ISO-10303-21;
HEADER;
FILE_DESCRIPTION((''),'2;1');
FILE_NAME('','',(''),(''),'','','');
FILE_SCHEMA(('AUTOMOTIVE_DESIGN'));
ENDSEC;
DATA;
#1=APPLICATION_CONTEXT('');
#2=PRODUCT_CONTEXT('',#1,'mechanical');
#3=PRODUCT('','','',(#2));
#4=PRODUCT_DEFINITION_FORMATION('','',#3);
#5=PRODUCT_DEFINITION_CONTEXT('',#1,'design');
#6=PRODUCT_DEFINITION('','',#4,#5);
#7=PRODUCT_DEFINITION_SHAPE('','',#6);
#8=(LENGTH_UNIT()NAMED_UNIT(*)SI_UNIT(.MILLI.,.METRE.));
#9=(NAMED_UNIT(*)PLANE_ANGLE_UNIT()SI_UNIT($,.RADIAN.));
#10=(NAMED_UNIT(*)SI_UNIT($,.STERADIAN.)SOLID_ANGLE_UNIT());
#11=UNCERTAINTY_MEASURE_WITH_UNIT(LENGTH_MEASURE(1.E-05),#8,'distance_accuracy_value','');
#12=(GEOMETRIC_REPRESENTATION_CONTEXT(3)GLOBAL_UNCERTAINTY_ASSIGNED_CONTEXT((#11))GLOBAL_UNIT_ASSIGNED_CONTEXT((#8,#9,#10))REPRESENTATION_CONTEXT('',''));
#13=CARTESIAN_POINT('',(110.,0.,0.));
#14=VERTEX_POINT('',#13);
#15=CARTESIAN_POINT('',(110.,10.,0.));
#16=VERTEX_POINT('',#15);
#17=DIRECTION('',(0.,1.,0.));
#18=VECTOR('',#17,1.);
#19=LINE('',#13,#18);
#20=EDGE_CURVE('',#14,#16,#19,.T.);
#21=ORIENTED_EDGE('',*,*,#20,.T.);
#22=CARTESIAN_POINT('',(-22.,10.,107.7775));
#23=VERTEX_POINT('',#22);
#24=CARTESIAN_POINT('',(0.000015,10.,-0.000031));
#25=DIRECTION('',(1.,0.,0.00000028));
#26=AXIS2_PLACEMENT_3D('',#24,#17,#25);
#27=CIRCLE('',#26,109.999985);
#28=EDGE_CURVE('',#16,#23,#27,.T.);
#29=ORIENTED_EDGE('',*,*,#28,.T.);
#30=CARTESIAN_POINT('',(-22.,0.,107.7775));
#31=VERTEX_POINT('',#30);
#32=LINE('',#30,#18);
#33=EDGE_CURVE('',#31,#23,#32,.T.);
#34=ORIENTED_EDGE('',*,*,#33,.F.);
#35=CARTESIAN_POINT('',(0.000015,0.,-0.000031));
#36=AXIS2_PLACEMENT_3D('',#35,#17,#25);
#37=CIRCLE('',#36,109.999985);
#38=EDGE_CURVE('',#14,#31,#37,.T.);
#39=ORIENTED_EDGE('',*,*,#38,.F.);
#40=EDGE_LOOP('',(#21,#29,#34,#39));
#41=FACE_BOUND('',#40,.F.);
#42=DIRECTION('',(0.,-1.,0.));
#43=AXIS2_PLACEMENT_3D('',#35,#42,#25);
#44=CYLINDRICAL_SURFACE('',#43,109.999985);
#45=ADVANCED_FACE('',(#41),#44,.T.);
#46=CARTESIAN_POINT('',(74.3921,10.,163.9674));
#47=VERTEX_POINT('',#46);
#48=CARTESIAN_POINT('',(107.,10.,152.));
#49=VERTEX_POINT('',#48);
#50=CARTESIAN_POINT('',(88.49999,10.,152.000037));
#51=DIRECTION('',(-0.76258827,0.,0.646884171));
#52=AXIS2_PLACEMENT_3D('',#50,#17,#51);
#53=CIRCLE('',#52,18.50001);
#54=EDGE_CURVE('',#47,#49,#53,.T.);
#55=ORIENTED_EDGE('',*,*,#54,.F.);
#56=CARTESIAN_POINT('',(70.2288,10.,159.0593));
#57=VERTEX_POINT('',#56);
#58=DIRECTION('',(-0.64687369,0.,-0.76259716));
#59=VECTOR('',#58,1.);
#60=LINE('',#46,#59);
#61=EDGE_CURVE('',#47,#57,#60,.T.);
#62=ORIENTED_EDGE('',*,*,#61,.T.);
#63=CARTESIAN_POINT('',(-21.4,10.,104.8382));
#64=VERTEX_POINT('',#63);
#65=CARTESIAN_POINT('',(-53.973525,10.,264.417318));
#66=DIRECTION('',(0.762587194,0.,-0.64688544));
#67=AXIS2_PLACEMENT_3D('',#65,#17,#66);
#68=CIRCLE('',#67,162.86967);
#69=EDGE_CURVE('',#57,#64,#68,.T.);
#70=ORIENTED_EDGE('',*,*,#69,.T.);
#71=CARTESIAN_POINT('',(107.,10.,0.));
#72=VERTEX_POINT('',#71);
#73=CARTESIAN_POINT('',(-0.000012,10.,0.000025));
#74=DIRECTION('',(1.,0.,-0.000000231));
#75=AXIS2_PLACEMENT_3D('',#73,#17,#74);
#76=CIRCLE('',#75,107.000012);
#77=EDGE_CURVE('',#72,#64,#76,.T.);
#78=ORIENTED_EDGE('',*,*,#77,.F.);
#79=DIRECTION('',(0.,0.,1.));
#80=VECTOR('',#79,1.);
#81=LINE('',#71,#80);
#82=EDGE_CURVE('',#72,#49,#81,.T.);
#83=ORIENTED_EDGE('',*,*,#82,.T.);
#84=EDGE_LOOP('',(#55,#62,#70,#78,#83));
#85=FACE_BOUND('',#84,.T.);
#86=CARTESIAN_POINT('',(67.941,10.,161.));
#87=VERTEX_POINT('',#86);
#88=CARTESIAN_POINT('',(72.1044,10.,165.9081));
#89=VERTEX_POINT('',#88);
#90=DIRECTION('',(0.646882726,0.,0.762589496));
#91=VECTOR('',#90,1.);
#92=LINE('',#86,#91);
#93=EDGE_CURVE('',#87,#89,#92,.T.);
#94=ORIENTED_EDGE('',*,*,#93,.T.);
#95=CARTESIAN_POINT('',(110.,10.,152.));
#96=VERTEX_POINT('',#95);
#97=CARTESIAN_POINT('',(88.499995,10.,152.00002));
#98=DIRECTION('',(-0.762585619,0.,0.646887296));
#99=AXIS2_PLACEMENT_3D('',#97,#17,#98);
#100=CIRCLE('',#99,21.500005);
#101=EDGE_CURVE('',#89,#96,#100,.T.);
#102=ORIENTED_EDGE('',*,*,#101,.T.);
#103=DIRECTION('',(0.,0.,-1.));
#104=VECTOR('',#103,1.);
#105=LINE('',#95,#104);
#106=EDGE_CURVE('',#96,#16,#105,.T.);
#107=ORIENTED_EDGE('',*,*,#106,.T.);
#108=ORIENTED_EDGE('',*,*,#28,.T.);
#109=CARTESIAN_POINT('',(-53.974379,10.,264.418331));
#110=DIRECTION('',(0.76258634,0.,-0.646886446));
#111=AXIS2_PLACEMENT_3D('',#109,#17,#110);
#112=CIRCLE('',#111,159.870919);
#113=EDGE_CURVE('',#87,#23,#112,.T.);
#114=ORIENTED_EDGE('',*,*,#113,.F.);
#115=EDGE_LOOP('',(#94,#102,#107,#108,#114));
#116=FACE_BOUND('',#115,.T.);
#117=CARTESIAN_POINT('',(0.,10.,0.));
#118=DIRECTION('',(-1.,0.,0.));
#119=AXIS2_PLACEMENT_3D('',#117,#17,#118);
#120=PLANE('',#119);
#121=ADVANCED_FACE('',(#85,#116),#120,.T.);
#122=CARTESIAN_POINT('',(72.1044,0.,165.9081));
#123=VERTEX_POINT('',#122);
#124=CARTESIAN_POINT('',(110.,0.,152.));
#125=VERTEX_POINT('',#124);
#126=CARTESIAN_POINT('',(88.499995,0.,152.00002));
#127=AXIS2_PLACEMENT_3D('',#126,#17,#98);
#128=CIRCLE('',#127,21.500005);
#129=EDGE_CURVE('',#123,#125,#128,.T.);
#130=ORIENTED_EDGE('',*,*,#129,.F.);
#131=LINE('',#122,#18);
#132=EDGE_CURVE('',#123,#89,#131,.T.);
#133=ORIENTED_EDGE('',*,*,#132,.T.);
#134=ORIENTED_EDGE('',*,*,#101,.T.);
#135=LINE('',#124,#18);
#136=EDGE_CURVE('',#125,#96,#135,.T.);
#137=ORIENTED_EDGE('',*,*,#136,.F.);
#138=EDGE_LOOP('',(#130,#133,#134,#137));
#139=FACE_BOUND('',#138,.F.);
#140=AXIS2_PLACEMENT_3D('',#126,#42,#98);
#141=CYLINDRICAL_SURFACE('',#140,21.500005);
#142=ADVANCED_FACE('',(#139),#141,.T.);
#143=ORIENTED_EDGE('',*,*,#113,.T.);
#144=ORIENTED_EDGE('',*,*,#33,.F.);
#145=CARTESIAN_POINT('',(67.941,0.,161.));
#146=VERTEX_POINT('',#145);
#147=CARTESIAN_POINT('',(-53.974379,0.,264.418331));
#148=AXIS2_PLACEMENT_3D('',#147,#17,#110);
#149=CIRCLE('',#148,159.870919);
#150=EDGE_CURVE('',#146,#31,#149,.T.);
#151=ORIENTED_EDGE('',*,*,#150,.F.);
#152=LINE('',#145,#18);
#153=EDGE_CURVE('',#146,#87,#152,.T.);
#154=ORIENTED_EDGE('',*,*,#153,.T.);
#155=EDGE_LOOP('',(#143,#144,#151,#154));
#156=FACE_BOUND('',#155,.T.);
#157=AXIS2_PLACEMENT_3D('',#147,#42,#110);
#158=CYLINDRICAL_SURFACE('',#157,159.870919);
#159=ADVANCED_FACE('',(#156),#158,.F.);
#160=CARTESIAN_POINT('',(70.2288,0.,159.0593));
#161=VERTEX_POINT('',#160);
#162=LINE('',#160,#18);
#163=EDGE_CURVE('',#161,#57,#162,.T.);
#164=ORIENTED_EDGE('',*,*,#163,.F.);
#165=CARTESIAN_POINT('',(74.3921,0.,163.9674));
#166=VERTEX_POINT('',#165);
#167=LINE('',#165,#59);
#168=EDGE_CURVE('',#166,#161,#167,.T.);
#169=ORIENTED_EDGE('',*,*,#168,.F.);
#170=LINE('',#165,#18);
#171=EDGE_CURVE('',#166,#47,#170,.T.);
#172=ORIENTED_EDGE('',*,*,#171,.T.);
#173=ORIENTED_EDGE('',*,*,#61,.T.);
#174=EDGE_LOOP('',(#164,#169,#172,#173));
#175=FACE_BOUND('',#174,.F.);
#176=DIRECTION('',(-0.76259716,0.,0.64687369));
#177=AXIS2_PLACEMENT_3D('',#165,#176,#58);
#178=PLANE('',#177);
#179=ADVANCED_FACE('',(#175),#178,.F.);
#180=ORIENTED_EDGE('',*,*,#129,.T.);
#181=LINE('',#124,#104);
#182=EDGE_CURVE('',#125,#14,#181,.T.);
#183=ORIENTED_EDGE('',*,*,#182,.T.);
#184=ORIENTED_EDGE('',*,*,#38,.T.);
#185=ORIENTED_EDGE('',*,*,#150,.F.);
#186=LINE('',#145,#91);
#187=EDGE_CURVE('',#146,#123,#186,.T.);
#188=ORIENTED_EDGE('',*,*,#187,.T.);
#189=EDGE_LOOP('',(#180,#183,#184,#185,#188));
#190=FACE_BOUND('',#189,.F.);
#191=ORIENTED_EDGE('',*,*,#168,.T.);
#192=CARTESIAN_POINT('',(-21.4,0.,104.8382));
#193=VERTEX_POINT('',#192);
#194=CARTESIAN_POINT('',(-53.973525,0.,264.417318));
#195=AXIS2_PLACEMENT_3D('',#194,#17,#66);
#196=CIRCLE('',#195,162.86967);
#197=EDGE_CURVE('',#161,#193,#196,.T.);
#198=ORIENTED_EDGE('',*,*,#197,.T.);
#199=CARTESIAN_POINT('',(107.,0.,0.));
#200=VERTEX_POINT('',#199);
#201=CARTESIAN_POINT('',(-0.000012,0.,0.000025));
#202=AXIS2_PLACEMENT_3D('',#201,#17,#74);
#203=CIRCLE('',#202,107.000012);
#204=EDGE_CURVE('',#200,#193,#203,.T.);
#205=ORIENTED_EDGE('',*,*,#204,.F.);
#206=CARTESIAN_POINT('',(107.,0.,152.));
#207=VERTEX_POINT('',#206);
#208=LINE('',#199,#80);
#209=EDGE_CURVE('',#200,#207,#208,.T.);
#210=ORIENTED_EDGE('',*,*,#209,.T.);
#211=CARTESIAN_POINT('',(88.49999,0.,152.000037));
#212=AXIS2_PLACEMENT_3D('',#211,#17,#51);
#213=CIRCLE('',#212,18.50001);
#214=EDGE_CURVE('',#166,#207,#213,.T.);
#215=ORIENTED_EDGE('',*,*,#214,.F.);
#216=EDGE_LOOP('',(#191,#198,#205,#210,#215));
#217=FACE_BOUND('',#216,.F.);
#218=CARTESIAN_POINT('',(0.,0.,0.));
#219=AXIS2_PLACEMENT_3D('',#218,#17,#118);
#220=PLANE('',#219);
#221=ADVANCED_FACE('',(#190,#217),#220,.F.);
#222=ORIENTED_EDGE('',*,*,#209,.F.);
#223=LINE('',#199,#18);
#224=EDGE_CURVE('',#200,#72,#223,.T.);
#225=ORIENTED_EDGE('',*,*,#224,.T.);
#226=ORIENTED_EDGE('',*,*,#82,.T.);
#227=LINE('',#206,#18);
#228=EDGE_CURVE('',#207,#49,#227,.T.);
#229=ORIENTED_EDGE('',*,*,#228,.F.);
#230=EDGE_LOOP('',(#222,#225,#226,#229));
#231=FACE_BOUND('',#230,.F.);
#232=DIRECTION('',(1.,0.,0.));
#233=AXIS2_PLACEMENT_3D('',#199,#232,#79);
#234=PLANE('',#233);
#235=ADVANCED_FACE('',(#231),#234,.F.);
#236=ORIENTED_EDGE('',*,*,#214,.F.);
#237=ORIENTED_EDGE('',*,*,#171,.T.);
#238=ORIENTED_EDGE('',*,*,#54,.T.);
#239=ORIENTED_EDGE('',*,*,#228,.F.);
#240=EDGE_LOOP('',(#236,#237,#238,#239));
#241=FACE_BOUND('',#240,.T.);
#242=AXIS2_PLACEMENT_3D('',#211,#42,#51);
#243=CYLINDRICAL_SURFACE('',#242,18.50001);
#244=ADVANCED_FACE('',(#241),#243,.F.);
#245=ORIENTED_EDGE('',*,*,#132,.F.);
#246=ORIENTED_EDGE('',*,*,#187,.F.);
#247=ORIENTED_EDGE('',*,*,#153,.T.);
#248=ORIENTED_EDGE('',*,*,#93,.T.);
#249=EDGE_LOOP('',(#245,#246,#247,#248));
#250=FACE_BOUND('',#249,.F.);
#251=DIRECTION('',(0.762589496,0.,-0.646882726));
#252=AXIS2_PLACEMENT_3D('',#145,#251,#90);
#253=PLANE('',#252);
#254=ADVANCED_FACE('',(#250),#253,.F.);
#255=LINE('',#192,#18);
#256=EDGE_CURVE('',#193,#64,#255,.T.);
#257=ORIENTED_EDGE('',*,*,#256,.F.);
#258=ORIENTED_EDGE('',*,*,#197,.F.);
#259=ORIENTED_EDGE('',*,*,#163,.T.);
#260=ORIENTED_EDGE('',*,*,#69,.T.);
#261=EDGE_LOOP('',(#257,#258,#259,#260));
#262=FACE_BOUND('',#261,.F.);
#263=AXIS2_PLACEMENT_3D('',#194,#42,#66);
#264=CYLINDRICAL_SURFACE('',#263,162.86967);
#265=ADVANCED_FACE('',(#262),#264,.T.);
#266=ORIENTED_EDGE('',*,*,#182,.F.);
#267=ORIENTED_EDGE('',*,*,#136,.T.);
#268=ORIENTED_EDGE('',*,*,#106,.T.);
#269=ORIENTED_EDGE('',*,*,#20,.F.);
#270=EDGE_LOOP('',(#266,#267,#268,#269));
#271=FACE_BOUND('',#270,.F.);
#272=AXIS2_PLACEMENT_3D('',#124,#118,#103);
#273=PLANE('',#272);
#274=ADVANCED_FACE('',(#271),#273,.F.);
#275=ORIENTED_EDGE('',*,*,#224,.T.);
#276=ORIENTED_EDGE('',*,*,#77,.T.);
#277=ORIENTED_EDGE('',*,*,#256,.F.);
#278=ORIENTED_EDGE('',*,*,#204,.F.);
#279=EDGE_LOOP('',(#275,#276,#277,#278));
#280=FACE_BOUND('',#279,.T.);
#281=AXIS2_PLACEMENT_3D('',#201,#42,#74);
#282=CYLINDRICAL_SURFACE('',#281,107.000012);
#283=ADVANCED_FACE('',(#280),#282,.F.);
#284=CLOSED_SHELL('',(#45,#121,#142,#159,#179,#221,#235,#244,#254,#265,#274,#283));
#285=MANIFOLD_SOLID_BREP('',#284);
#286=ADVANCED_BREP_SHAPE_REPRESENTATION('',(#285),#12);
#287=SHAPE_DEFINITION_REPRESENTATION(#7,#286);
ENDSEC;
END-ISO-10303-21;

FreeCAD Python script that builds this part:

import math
import FreeCAD as App
import Part
import Sketcher
from FreeCAD import Vector

doc = App.newDocument("Part")
body = doc.addObject("PartDesign::Body", "Body")

# Sketch on XZ plane
sketch1 = body.newObject("Sketcher::SketchObject", "Sketch")
sketch1.AttachmentSupport = (doc.getObject("XZ_Plane"), [""])
sketch1.MapMode = "FlatFace"
sketch1.addGeometry([
    Part.ArcOfCircle(Part.Circle(Vector(-54, 264, 0), Vector(0, 0, 1), 160), math.radians(-78), math.radians(-40)),  # 0
    Part.LineSegment(Vector(68, 161, 0), Vector(72, 166, 0)),  # 1
    Part.ArcOfCircle(Part.Circle(Vector(88, 152, 0), Vector(0, 0, 1), 22), math.radians(0), math.radians(140)),  # 2
    Part.LineSegment(Vector(110, 152, 0), Vector(110, 0, 0)),  # 3
    Part.ArcOfCircle(Part.Circle(Vector(0, 0, 0), Vector(0, 0, 1), 110), math.radians(102), math.radians(360)),  # 4
    Part.ArcOfCircle(Part.Circle(Vector(88, 152, 0), Vector(0, 0, 1), 19), math.radians(0), math.radians(140)),  # 5
    Part.LineSegment(Vector(74, 164, 0), Vector(70, 159, 0)),  # 6
    Part.ArcOfCircle(Part.Circle(Vector(-54, 264, 0), Vector(0, 0, 1), 163), math.radians(-78), math.radians(-40)),  # 7
    Part.ArcOfCircle(Part.Circle(Vector(0, 0, 0), Vector(0, 0, 1), 107), math.radians(102), math.radians(360)),  # 8
    Part.LineSegment(Vector(107, 0, 0), Vector(107, 152, 0)),  # 9
], False)
sketch1.addConstraint([
    Sketcher.Constraint("Tangent", 0, 2, 1, 1),
    Sketcher.Constraint("Tangent", 1, 2, 2, 2),
    Sketcher.Constraint("Tangent", 2, 1, 3, 1),
    Sketcher.Constraint("Tangent", 3, 2, 4, 2),
    Sketcher.Constraint("Tangent", 4, 1, 0, 1),
    Sketcher.Constraint("Tangent", 5, 2, 6, 1),
    Sketcher.Constraint("Tangent", 6, 2, 7, 2),
    Sketcher.Constraint("Tangent", 7, 1, 8, 1),
    Sketcher.Constraint("Tangent", 8, 2, 9, 1),
    Sketcher.Constraint("Tangent", 9, 2, 5, 1),
    Sketcher.Constraint("Vertical", 3),
    Sketcher.Constraint("Vertical", 9),
    Sketcher.Constraint("Coincident", 4, 3, -1, 1),
    Sketcher.Constraint("Coincident", 8, 3, -1, 1),
    Sketcher.Constraint("Coincident", 5, 3, 2, 3),
    Sketcher.Constraint("Coincident", 7, 3, 0, 3),
    Sketcher.Constraint("Radius", 4, 110.0),
    Sketcher.Constraint("Radius", 8, 107.0),
    Sketcher.Constraint("Radius", 2, 21.5),
    Sketcher.Constraint("DistanceY", 3, 2, 3, 1, 152.0),
    Sketcher.Constraint("Radius", 0, 159.8705),
    Sketcher.Constraint("DistanceY", -1, 1, 0, 2, 161.0),
])
pad1 = body.newObject("PartDesign::Pad", "Pad")
pad1.Profile = sketch1
pad1.Length = 10
pad1.Reversed = True

doc.recompute()
